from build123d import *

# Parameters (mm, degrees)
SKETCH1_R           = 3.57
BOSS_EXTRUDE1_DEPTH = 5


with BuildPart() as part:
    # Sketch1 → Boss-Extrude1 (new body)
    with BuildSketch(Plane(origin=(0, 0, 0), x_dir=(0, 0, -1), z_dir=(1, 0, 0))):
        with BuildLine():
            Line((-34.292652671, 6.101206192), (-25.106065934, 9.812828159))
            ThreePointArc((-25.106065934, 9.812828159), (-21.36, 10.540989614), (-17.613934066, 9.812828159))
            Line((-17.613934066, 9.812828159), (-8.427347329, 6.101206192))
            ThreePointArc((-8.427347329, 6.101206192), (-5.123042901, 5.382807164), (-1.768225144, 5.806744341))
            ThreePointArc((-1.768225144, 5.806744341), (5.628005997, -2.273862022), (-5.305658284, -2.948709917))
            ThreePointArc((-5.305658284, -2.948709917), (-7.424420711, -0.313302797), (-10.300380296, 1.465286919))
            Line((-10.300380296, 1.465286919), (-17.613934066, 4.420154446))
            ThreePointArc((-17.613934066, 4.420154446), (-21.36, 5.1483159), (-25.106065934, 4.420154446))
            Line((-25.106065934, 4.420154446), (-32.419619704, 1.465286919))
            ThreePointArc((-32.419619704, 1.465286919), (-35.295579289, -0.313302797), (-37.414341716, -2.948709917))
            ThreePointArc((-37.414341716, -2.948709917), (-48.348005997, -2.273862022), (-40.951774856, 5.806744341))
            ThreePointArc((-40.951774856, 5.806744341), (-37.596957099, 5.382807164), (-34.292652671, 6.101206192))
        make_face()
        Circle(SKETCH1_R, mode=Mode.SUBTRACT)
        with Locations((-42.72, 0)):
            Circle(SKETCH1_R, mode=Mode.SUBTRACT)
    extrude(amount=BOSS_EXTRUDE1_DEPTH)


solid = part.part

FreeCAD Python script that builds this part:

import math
import FreeCAD as App
import Part
import Sketcher

V = App.Vector
Q = App.Units.Quantity

doc = App.newDocument("Part")
body = doc.addObject("PartDesign::Body", "Body")

# Sketch on YZ plane
sketch1 = body.newObject("Sketcher::SketchObject", "Sketch")
sketch1.AttachmentSupport = (doc.getObject("YZ_Plane"), [""])
sketch1.MapMode = "FlatFace"
sketch1.addGeometry([
    Part.LineSegment(V(9.812828, 25.106066, 0), V(6.101206, 34.292653, 0)),  # 0
    Part.ArcOfCircle(Part.Circle(V(15.373045, 38.038719, 0), V(0, 0, 1), 10), math.radians(163.063862), math.radians(202)),  # 1
    Part.ArcOfCircle(Part.Circle(V(0, 42.72, 0), V(0, 0, 1), 6.07), math.radians(-16.936138), math.radians(240.936138)),  # 2
    Part.ArcOfCircle(Part.Circle(V(-7.806552, 28.673554, 0), V(0, 0, 1), 10), math.radians(22), math.radians(60.936138)),  # 3
    Part.LineSegment(V(1.465287, 32.41962, 0), V(4.420154, 25.106066, 0)),  # 4
    Part.ArcOfCircle(Part.Circle(V(-4.851684, 21.36, 0), V(0, 0, 1), 10), math.radians(-22), math.radians(22)),  # 5
    Part.LineSegment(V(4.420154, 17.613934, 0), V(1.465287, 10.30038, 0)),  # 6
    Part.ArcOfCircle(Part.Circle(V(-7.806552, 14.046446, 0), V(0, 0, 1), 10), math.radians(-60.936138), math.radians(-22)),  # 7
    Part.ArcOfCircle(Part.Circle(V(0, 0, 0), V(0, 0, 1), 6.07), math.radians(119.063862), math.radians(376.936138)),  # 8
    Part.ArcOfCircle(Part.Circle(V(15.373045, 4.681281, 0), V(0, 0, 1), 10), math.radians(158), math.radians(196.936138)),  # 9
    Part.LineSegment(V(6.101206, 8.427347, 0), V(9.812828, 17.613934, 0)),  # 10
    Part.ArcOfCircle(Part.Circle(V(0.54099, 21.36, 0), V(0, 0, 1), 10), math.radians(-22), math.radians(22)),  # 11
    Part.Circle(V(0, 0, 0), V(0, 0, 1), 3.57),  # 12
    Part.Circle(V(0, 42.72, 0), V(0, 0, 1), 3.57),  # 13
], False)
sketch1.addConstraint([
    Sketcher.Constraint("Tangent", 0, 2, 1, 2),
    Sketcher.Constraint("Tangent", 1, 1, 2, 1),
    Sketcher.Constraint("Tangent", 2, 2, 3, 2),
    Sketcher.Constraint("Tangent", 3, 1, 4, 1),
    Sketcher.Constraint("Tangent", 4, 2, 5, 2),
    Sketcher.Constraint("Tangent", 5, 1, 6, 1),
    Sketcher.Constraint("Tangent", 6, 2, 7, 2),
    Sketcher.Constraint("Tangent", 7, 1, 8, 1),
    Sketcher.Constraint("Tangent", 8, 2, 9, 2),
    Sketcher.Constraint("Tangent", 9, 1, 10, 1),
    Sketcher.Constraint("Tangent", 10, 2, 11, 1),
    Sketcher.Constraint("Tangent", 11, 2, 0, 1),
    Sketcher.Constraint("Coincident", 8, 3, -1, 1),
    Sketcher.Constraint("Coincident", 12, 3, -1, 1),
    Sketcher.Constraint("Coincident", 13, 3, 2, 3),
    Sketcher.Constraint("Equal", 1, 3),
    Sketcher.Constraint("Equal", 3, 5),
    Sketcher.Constraint("Equal", 5, 7),
    Sketcher.Constraint("Equal", 2, 8),
    Sketcher.Constraint("Equal", 7, 9),
    Sketcher.Constraint("Equal", 9, 11),
    Sketcher.Constraint("Equal", 12, 13),
    Sketcher.Constraint("PointOnObject", 2, 3, -2),
    Sketcher.Constraint("Parallel", 0, 4),
    Sketcher.Constraint("Parallel", 6, 10),
    Sketcher.Constraint("Horizontal", 5, 3, 11, 3),
    Sketcher.Constraint("Vertical", 3, 3, 7, 3),
    Sketcher.Constraint("Vertical", 1, 3, 9, 3),
    Sketcher.Constraint("Radius", 1, 10.0),
    Sketcher.Constraint("Diameter", 12, 7.14),
    Sketcher.Constraint("Angle", 0, Q("112 deg")),
    Sketcher.Constraint("Radius", 2, 6.07),
    Sketcher.Constraint("DistanceY", -1, 1, 2, 3, 42.72),
    Sketcher.Constraint("DistanceY", 3, 3, 0, 2, 5.619099),
    Sketcher.Constraint("DistanceX", 1, 1, 1, 3, 9.5663),
])
pad1 = body.newObject("PartDesign::Pad", "Pad")
pad1.Profile = sketch1
pad1.Length = 5

doc.recompute()
